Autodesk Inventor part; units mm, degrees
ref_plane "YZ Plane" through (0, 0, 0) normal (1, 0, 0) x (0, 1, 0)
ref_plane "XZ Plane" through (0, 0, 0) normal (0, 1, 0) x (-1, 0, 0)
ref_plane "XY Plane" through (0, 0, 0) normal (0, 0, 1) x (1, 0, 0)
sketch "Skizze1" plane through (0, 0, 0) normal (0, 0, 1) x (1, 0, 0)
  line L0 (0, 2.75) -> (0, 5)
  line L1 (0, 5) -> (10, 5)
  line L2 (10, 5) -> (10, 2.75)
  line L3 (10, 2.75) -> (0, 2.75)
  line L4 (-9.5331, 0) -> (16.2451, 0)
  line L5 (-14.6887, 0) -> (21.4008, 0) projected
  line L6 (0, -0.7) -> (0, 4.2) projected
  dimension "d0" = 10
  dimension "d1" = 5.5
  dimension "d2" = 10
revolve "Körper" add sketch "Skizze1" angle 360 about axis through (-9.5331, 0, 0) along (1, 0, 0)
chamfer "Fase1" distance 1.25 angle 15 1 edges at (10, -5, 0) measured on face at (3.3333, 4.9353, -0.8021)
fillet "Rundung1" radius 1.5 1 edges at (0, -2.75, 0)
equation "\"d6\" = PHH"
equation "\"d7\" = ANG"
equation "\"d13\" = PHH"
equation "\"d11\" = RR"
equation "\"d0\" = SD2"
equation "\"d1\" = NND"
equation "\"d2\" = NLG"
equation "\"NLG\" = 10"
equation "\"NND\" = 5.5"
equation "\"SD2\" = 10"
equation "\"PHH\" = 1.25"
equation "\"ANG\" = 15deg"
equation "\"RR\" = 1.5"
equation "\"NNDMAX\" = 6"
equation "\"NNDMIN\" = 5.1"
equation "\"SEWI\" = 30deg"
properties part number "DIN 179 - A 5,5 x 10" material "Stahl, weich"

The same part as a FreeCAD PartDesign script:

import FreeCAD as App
import Part
import Sketcher

V = App.Vector
Q = App.Units.Quantity


def edges_at(feature, points):
    """Names of the edges that pass closest to the given points."""
    edges = feature.Shape.Edges
    near = lambda p: min(range(len(edges)), key=lambda i: edges[i].distToShape(Part.Vertex(*p))[0])
    return sorted({f"Edge{near(p) + 1}" for p in points})


def add_polygon(sketch, points):
    """Adds a closed chain of lines whose ends are joined by coincident constraints."""
    first, n = sketch.GeometryCount, len(points)
    for a, b in zip(points, points[1:] + points[:1]):
        sketch.addGeometry(Part.LineSegment(App.Vector(*a, 0), App.Vector(*b, 0)), False)
    for i in range(n):
        sketch.addConstraint(Sketcher.Constraint("Coincident", first + i, 2, first + (i + 1) % n, 1))

doc = App.newDocument("Part")
body = doc.addObject("PartDesign::Body", "Body")

# Sketch on XY plane
sketch1 = body.newObject("Sketcher::SketchObject", "Sketch")
sketch1.AttachmentSupport = (doc.getObject("XY_Plane"), [""])
sketch1.MapMode = "FlatFace"
add_polygon(sketch1, [(0, 5), (0, 2.75), (10, 2.75), (10, 5)])  # lines 0-3
sketch1.addConstraint(Sketcher.Constraint("Vertical", 0))
sketch1.addConstraint(Sketcher.Constraint("Horizontal", 1))
sketch1.addConstraint(Sketcher.Constraint("Vertical", 2))
sketch1.addConstraint(Sketcher.Constraint("Horizontal", 3))
sketch1.addConstraint(Sketcher.Constraint("PointOnObject", 0, 2, -2))
sketch1.addConstraint(Sketcher.Constraint("DistanceX", 1, 1, 1, 2, Q("10 mm")))
sketch1.addConstraint(Sketcher.Constraint("DistanceY", -1, 1, 2, 2, Q("5 mm")))
sketch1.addConstraint(Sketcher.Constraint("DistanceY", 0, 2, 0, 1, Q("2.25 mm")))
revolution = body.newObject("PartDesign::Revolution", "Revolution")
revolution.Profile = sketch1
revolution.ReferenceAxis = (sketch1, ["H_Axis"])
revolution.Angle = 360
doc.recompute()

chamfer = body.newObject("PartDesign::Chamfer", "Chamfer")
chamfer.Base = (revolution, edges_at(revolution, [(10, -5, 0)]))
chamfer.ChamferType = "Distance and Angle"
chamfer.Size = 1.25
chamfer.Angle = 15
chamfer.FlipDirection = True
doc.recompute()

fillet = body.newObject("PartDesign::Fillet", "Fillet")
fillet.Base = (chamfer, edges_at(chamfer, [(0, -2.75, 0)]))
fillet.Radius = 1.5

doc.recompute()
